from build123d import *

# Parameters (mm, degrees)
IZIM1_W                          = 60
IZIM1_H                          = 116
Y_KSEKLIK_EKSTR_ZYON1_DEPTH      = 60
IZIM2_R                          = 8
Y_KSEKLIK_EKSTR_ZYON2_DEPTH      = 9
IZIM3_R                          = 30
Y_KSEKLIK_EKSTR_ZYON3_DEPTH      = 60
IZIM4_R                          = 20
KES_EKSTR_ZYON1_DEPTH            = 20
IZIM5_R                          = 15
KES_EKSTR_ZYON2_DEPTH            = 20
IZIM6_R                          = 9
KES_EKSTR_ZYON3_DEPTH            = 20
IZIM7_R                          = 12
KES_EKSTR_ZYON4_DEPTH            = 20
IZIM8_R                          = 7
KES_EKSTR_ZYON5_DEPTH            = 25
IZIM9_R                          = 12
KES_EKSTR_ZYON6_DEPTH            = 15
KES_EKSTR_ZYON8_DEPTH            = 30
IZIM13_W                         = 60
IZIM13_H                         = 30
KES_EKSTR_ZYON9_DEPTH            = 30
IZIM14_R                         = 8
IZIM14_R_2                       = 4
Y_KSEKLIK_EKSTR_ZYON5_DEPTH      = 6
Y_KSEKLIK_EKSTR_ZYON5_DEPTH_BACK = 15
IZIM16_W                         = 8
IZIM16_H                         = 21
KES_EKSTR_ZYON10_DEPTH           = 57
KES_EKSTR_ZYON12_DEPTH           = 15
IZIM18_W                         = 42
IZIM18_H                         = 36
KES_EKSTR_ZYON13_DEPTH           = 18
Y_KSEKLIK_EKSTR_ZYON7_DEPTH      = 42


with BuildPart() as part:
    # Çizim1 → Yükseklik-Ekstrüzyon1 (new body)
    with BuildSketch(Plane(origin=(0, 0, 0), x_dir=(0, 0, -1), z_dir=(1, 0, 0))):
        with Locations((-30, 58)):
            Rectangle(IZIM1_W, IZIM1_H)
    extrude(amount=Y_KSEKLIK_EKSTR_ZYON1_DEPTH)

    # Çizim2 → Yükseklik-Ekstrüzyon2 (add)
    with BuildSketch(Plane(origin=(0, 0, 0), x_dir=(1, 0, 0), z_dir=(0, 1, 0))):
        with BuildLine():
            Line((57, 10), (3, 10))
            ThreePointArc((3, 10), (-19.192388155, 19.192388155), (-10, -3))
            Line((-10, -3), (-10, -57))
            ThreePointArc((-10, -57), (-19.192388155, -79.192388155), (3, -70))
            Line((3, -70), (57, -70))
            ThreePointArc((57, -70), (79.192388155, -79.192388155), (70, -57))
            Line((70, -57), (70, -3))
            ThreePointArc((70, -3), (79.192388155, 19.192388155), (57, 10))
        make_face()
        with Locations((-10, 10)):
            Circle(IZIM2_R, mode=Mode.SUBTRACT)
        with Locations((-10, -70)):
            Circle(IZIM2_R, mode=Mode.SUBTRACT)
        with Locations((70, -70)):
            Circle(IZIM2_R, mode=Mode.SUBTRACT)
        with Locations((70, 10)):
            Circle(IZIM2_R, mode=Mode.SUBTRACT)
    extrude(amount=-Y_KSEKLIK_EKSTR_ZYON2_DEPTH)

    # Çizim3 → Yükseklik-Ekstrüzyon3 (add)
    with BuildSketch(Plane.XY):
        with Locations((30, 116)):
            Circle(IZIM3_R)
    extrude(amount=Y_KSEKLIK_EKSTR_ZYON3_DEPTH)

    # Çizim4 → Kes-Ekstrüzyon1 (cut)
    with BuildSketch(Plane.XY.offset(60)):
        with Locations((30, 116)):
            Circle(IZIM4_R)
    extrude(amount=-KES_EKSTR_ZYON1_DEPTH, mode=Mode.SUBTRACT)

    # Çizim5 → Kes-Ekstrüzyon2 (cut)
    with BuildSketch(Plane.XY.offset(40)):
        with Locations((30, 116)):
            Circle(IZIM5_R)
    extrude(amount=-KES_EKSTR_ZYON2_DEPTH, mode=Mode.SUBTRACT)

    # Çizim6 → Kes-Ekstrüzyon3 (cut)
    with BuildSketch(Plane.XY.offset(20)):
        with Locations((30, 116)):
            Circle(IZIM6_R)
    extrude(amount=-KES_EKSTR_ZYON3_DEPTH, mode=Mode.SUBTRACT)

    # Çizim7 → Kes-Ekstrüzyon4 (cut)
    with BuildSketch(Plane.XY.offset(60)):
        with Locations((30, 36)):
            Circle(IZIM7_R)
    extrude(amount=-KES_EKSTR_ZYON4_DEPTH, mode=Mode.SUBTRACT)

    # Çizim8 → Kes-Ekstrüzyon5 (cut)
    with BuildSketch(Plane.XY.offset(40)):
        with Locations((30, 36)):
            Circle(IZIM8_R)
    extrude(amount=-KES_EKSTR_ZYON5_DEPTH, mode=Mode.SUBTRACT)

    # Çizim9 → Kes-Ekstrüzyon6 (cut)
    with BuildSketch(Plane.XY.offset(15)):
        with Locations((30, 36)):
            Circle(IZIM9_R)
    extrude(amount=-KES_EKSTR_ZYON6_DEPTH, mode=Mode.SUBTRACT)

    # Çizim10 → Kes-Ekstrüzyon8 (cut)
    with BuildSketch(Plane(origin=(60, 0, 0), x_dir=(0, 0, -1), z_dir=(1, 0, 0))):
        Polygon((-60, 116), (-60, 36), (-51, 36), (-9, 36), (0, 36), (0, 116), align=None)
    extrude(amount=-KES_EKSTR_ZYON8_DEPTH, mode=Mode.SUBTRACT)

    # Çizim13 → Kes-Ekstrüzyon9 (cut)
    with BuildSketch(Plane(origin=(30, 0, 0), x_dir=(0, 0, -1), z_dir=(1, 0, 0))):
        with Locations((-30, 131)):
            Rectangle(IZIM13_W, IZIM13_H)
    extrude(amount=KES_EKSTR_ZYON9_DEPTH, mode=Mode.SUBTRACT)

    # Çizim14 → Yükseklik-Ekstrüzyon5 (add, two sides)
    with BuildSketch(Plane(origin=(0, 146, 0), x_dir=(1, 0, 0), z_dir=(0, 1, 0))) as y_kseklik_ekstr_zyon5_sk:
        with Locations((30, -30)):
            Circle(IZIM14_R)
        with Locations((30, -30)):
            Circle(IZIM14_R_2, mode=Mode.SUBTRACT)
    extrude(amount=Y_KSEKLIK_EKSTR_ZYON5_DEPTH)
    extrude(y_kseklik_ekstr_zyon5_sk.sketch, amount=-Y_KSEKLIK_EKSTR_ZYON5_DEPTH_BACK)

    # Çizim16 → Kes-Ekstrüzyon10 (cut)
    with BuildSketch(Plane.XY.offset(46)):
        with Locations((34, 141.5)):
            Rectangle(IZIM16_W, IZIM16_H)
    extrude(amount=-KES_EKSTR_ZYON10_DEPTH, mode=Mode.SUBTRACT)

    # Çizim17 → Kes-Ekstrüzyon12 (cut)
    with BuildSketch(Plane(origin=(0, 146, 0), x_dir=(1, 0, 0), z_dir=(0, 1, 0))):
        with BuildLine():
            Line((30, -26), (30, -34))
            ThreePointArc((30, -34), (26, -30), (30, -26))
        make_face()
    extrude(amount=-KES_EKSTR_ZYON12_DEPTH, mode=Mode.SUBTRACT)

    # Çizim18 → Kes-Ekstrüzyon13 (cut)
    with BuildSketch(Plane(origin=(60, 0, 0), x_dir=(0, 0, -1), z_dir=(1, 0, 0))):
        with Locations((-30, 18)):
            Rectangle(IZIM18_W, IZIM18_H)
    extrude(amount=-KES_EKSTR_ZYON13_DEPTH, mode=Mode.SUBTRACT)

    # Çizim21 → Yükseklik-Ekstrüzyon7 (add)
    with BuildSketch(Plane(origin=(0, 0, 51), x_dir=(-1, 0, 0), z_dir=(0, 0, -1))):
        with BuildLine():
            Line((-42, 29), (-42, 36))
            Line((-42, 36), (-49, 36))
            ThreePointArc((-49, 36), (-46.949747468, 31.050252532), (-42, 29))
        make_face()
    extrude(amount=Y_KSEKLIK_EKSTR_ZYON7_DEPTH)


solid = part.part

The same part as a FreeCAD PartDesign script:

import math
import FreeCAD as App
import Part
import Sketcher

V = App.Vector
Q = App.Units.Quantity


def add_polygon(sketch, points):
    """Adds a closed chain of lines whose ends are joined by coincident constraints."""
    first, n = sketch.GeometryCount, len(points)
    for a, b in zip(points, points[1:] + points[:1]):
        sketch.addGeometry(Part.LineSegment(App.Vector(*a, 0), App.Vector(*b, 0)), False)
    for i in range(n):
        sketch.addConstraint(Sketcher.Constraint("Coincident", first + i, 2, first + (i + 1) % n, 1))

doc = App.newDocument("Part")
body = doc.addObject("PartDesign::Body", "Body")

# Sketch on YZ plane
sketch1 = body.newObject("Sketcher::SketchObject", "Sketch")
sketch1.AttachmentSupport = (doc.getObject("YZ_Plane"), [""])
sketch1.MapMode = "FlatFace"
add_polygon(sketch1, [(116, 60), (0, 60), (0, 0), (116, 0)])  # lines 0-3
sketch1.addConstraint([
    Sketcher.Constraint("Horizontal", 0),
    Sketcher.Constraint("Vertical", 1),
    Sketcher.Constraint("Horizontal", 2),
    Sketcher.Constraint("Vertical", 3),
    Sketcher.Constraint("Coincident", 1, 2, -1, 1),
    Sketcher.Constraint("DistanceX", 0, 2, 0, 1, Q("116 mm")),
    Sketcher.Constraint("DistanceY", 1, 2, 1, 1, Q("60 mm")),
])
pad1 = body.newObject("PartDesign::Pad", "Pad")
pad1.Profile = sketch1
pad1.Length = 60

# Sketch on XZ plane
sketch2 = body.newObject("Sketcher::SketchObject", "Sketch001")
sketch2.AttachmentSupport = (doc.getObject("XZ_Plane"), [""])
sketch2.MapMode = "FlatFace"
sketch2.addGeometry([
    Part.LineSegment(V(57, -10, 0), V(3, -10, 0)),  # 0
    Part.ArcOfCircle(Part.Circle(V(-10, -10, 0), V(0, 0, 1), 13), math.radians(90), math.radians(360)),  # 1
    Part.LineSegment(V(-10, 3, 0), V(-10, 57, 0)),  # 2
    Part.ArcOfCircle(Part.Circle(V(-10, 70, 0), V(0, 0, 1), 13), math.radians(0), math.radians(270)),  # 3
    Part.LineSegment(V(3, 70, 0), V(57, 70, 0)),  # 4
    Part.ArcOfCircle(Part.Circle(V(70, 70, 0), V(0, 0, 1), 13), math.radians(-90), math.radians(180)),  # 5
    Part.LineSegment(V(70, 57, 0), V(70, 3, 0)),  # 6
    Part.ArcOfCircle(Part.Circle(V(70, -10, 0), V(0, 0, 1), 13), math.radians(180), math.radians(450)),  # 7
    Part.Circle(V(-10, 70, 0), V(0, 0, 1), 8),  # 8
    Part.Circle(V(70, 70, 0), V(0, 0, 1), 8),  # 9
    Part.Circle(V(-10, -10, 0), V(0, 0, 1), 8),  # 10
    Part.Circle(V(70, -10, 0), V(0, 0, 1), 8),  # 11
], False)
sketch2.addConstraint([
    Sketcher.Constraint("Coincident", 0, 2, 1, 2),
    Sketcher.Constraint("Coincident", 1, 1, 2, 1),
    Sketcher.Constraint("Coincident", 2, 2, 3, 2),
    Sketcher.Constraint("Coincident", 3, 1, 4, 1),
    Sketcher.Constraint("Coincident", 4, 2, 5, 2),
    Sketcher.Constraint("Coincident", 5, 1, 6, 1),
    Sketcher.Constraint("Coincident", 6, 2, 7, 2),
    Sketcher.Constraint("Coincident", 7, 1, 0, 1),
    Sketcher.Constraint("Horizontal", 0),
    Sketcher.Constraint("Vertical", 2),
    Sketcher.Constraint("Horizontal", 4),
    Sketcher.Constraint("Vertical", 6),
    Sketcher.Constraint("Coincident", 8, 3, 3, 3),
    Sketcher.Constraint("Coincident", 9, 3, 5, 3),
    Sketcher.Constraint("Coincident", 10, 3, 1, 3),
    Sketcher.Constraint("Coincident", 11, 3, 7, 3),
    Sketcher.Constraint("Equal", 1, 3),
    Sketcher.Constraint("Equal", 3, 5),
    Sketcher.Constraint("Equal", 5, 7),
    Sketcher.Constraint("Equal", 8, 9),
    Sketcher.Constraint("Equal", 9, 10),
    Sketcher.Constraint("Equal", 10, 11),
    Sketcher.Constraint("Horizontal", 3, 3, 5, 3),
    Sketcher.Constraint("Horizontal", 1, 3, 7, 3),
    Sketcher.Constraint("Horizontal", 11, 3, 0, 2),
    Sketcher.Constraint("Horizontal", 9, 3, 3, 1),
    Sketcher.Constraint("Vertical", 1, 3, 3, 3),
    Sketcher.Constraint("Vertical", 5, 3, 7, 3),
    Sketcher.Constraint("Vertical", 10, 3, 1, 1),
    Sketcher.Constraint("Vertical", 11, 3, 5, 1),
    Sketcher.Constraint("Equal", 4, 2),
    Sketcher.Constraint("Diameter", 8, Q("16 mm")),
    Sketcher.Constraint("Radius", 1, Q("13 mm")),
    Sketcher.Constraint("DistanceX", 0, 2, 0, 1, Q("54 mm")),
    Sketcher.Constraint("DistanceX", 1, 3, -1, 1, Q("10 mm")),
    Sketcher.Constraint("DistanceY", 1, 3, -1, 1, Q("10 mm")),
])
pad2 = body.newObject("PartDesign::Pad", "Pad001")
pad2.Profile = sketch2
pad2.Length = 9

# Sketch on XY plane
sketch3 = body.newObject("Sketcher::SketchObject", "Sketch002")
sketch3.AttachmentSupport = (doc.getObject("XY_Plane"), [""])
sketch3.MapMode = "FlatFace"
sketch3.addGeometry(Part.Circle(V(30, 116, 0), V(0, 0, 1), 30), False)
sketch3.addConstraint([
    Sketcher.Constraint("Diameter", 0, Q("60 mm")),
    Sketcher.Constraint("DistanceX", -1, 1, 0, 3, Q("30 mm")),
    Sketcher.Constraint("DistanceY", -1, 1, 0, 3, Q("116 mm")),
])
pad3 = body.newObject("PartDesign::Pad", "Pad002")
pad3.Profile = sketch3
pad3.Length = 60

# Sketch on XY plane
sketch4 = body.newObject("Sketcher::SketchObject", "Sketch003")
sketch4.AttachmentSupport = (doc.getObject("XY_Plane"), [""])
sketch4.MapMode = "FlatFace"
sketch4.AttachmentOffset = App.Placement(V(0, 0, 60), App.Rotation())
sketch4.addGeometry(Part.Circle(V(30, 116, 0), V(0, 0, 1), 20), False)
sketch4.addConstraint([
    Sketcher.Constraint("Diameter", 0, Q("40 mm")),
    Sketcher.Constraint("DistanceX", -1, 1, 0, 3, Q("30 mm")),
    Sketcher.Constraint("DistanceY", -1, 1, 0, 3, Q("116 mm")),
])
pocket1 = body.newObject("PartDesign::Pocket", "Pocket")
pocket1.Profile = sketch4
pocket1.Length = 20

# Sketch on XY plane
sketch5 = body.newObject("Sketcher::SketchObject", "Sketch004")
sketch5.AttachmentSupport = (doc.getObject("XY_Plane"), [""])
sketch5.MapMode = "FlatFace"
sketch5.AttachmentOffset = App.Placement(V(0, 0, 40), App.Rotation())
sketch5.addGeometry(Part.Circle(V(30, 116, 0), V(0, 0, 1), 15), False)
sketch5.addConstraint([
    Sketcher.Constraint("Diameter", 0, Q("30 mm")),
    Sketcher.Constraint("DistanceX", -1, 1, 0, 3, Q("30 mm")),
    Sketcher.Constraint("DistanceY", -1, 1, 0, 3, Q("116 mm")),
])
pocket2 = body.newObject("PartDesign::Pocket", "Pocket001")
pocket2.Profile = sketch5
pocket2.Length = 20

# Sketch on XY plane
sketch6 = body.newObject("Sketcher::SketchObject", "Sketch005")
sketch6.AttachmentSupport = (doc.getObject("XY_Plane"), [""])
sketch6.MapMode = "FlatFace"
sketch6.AttachmentOffset = App.Placement(V(0, 0, 20), App.Rotation())
sketch6.addGeometry(Part.Circle(V(30, 116, 0), V(0, 0, 1), 9), False)
sketch6.addConstraint([
    Sketcher.Constraint("Diameter", 0, Q("18 mm")),
    Sketcher.Constraint("DistanceX", -1, 1, 0, 3, Q("30 mm")),
    Sketcher.Constraint("DistanceY", -1, 1, 0, 3, Q("116 mm")),
])
pocket3 = body.newObject("PartDesign::Pocket", "Pocket002")
pocket3.Profile = sketch6
pocket3.Length = 20

# Sketch on XY plane
sketch7 = body.newObject("Sketcher::SketchObject", "Sketch006")
sketch7.AttachmentSupport = (doc.getObject("XY_Plane"), [""])
sketch7.MapMode = "FlatFace"
sketch7.AttachmentOffset = App.Placement(V(0, 0, 60), App.Rotation())
sketch7.addGeometry(Part.Circle(V(30, 36, 0), V(0, 0, 1), 12), False)
sketch7.addConstraint([
    Sketcher.Constraint("Diameter", 0, Q("24 mm")),
    Sketcher.Constraint("DistanceX", -1, 1, 0, 3, Q("30 mm")),
    Sketcher.Constraint("DistanceY", -1, 1, 0, 3, Q("36 mm")),
])
pocket4 = body.newObject("PartDesign::Pocket", "Pocket003")
pocket4.Profile = sketch7
pocket4.Length = 20

# Sketch on XY plane
sketch8 = body.newObject("Sketcher::SketchObject", "Sketch007")
sketch8.AttachmentSupport = (doc.getObject("XY_Plane"), [""])
sketch8.MapMode = "FlatFace"
sketch8.AttachmentOffset = App.Placement(V(0, 0, 40), App.Rotation())
sketch8.addGeometry(Part.Circle(V(30, 36, 0), V(0, 0, 1), 7), False)
sketch8.addConstraint([
    Sketcher.Constraint("Diameter", 0, Q("14 mm")),
    Sketcher.Constraint("DistanceX", -1, 1, 0, 3, Q("30 mm")),
    Sketcher.Constraint("DistanceY", -1, 1, 0, 3, Q("36 mm")),
])
pocket5 = body.newObject("PartDesign::Pocket", "Pocket004")
pocket5.Profile = sketch8
pocket5.Length = 25

# Sketch on XY plane
sketch9 = body.newObject("Sketcher::SketchObject", "Sketch008")
sketch9.AttachmentSupport = (doc.getObject("XY_Plane"), [""])
sketch9.MapMode = "FlatFace"
sketch9.AttachmentOffset = App.Placement(V(0, 0, 15), App.Rotation())
sketch9.addGeometry(Part.Circle(V(30, 36, 0), V(0, 0, 1), 12), False)
sketch9.addConstraint([
    Sketcher.Constraint("Diameter", 0, Q("24 mm")),
    Sketcher.Constraint("DistanceX", -1, 1, 0, 3, Q("30 mm")),
    Sketcher.Constraint("DistanceY", -1, 1, 0, 3, Q("36 mm")),
])
pocket6 = body.newObject("PartDesign::Pocket", "Pocket005")
pocket6.Profile = sketch9
pocket6.Length = 15

# Sketch on YZ plane
sketch10 = body.newObject("Sketcher::SketchObject", "Sketch009")
sketch10.AttachmentSupport = (doc.getObject("YZ_Plane"), [""])
sketch10.MapMode = "FlatFace"
sketch10.AttachmentOffset = App.Placement(V(0, 0, 60), App.Rotation())
add_polygon(sketch10, [(116, 60), (36, 60), (36, 0), (116, 0)])  # lines 0-3
sketch10.addConstraint([
    Sketcher.Constraint("Horizontal", 0),
    Sketcher.Constraint("Vertical", 1),
    Sketcher.Constraint("Horizontal", 2),
    Sketcher.Constraint("Vertical", 3),
    Sketcher.Constraint("PointOnObject", 1, 2, -1),
    Sketcher.Constraint("DistanceX", 0, 2, 0, 1, Q("80 mm")),
    Sketcher.Constraint("DistanceY", 1, 2, 1, 1, Q("60 mm")),
    Sketcher.Constraint("DistanceX", -1, 1, 0, 2, Q("36 mm")),
])
pocket7 = body.newObject("PartDesign::Pocket", "Pocket006")
pocket7.Profile = sketch10
pocket7.Length = 30

# Sketch on YZ plane
sketch11 = body.newObject("Sketcher::SketchObject", "Sketch010")
sketch11.AttachmentSupport = (doc.getObject("YZ_Plane"), [""])
sketch11.MapMode = "FlatFace"
sketch11.AttachmentOffset = App.Placement(V(0, 0, 30), App.Rotation())
add_polygon(sketch11, [(146, 60), (116, 60), (116, 0), (146, 0)])  # lines 0-3
sketch11.addConstraint([
    Sketcher.Constraint("Horizontal", 0),
    Sketcher.Constraint("Vertical", 1),
    Sketcher.Constraint("Horizontal", 2),
    Sketcher.Constraint("Vertical", 3),
    Sketcher.Constraint("PointOnObject", 1, 2, -1),
    Sketcher.Constraint("DistanceX", 0, 2, 0, 1, Q("30 mm")),
    Sketcher.Constraint("DistanceY", 1, 2, 1, 1, Q("60 mm")),
    Sketcher.Constraint("DistanceX", -1, 1, 0, 2, Q("116 mm")),
])
pocket8 = body.newObject("PartDesign::Pocket", "Pocket007")
pocket8.Profile = sketch11
pocket8.Length = 30
pocket8.Reversed = True

# Sketch on XZ plane
sketch12 = body.newObject("Sketcher::SketchObject", "Sketch011")
sketch12.AttachmentSupport = (doc.getObject("XZ_Plane"), [""])
sketch12.MapMode = "FlatFace"
sketch12.AttachmentOffset = App.Placement(V(0, 0, -146), App.Rotation())
sketch12.addGeometry([
    Part.Circle(V(30, 30, 0), V(0, 0, 1), 8),
    Part.Circle(V(30, 30, 0), V(0, 0, 1), 4),
], False)
sketch12.addConstraint([
    Sketcher.Constraint("Coincident", 1, 3, 0, 3),
    Sketcher.Constraint("Diameter", 0, Q("16 mm")),
    Sketcher.Constraint("Diameter", 1, Q("8 mm")),
    Sketcher.Constraint("DistanceX", -1, 1, 0, 3, Q("30 mm")),
    Sketcher.Constraint("DistanceY", -1, 1, 0, 3, Q("30 mm")),
])
pad4 = body.newObject("PartDesign::Pad", "Pad003")
pad4.Profile = sketch12
pad4.Type = "TwoLengths"
pad4.Length = 6
pad4.Length2 = 15
pad4.Reversed = True

# Sketch on XY plane
sketch13 = body.newObject("Sketcher::SketchObject", "Sketch012")
sketch13.AttachmentSupport = (doc.getObject("XY_Plane"), [""])
sketch13.MapMode = "FlatFace"
sketch13.AttachmentOffset = App.Placement(V(0, 0, 46), App.Rotation())
add_polygon(sketch13, [(30, 152), (30, 131), (38, 131), (38, 152)])  # lines 0-3
sketch13.addConstraint([
    Sketcher.Constraint("Vertical", 0),
    Sketcher.Constraint("Horizontal", 1),
    Sketcher.Constraint("Vertical", 2),
    Sketcher.Constraint("Horizontal", 3),
    Sketcher.Constraint("DistanceX", 1, 1, 1, 2, Q("8 mm")),
    Sketcher.Constraint("DistanceY", 0, 2, 0, 1, Q("21 mm")),
    Sketcher.Constraint("DistanceX", -1, 1, 0, 2, Q("30 mm")),
    Sketcher.Constraint("DistanceY", -1, 1, 0, 2, Q("131 mm")),
])
pocket9 = body.newObject("PartDesign::Pocket", "Pocket008")
pocket9.Profile = sketch13
pocket9.Length = 57

# Sketch on XZ plane
sketch14 = body.newObject("Sketcher::SketchObject", "Sketch013")
sketch14.AttachmentSupport = (doc.getObject("XZ_Plane"), [""])
sketch14.MapMode = "FlatFace"
sketch14.AttachmentOffset = App.Placement(V(0, 0, -146), App.Rotation())
sketch14.addGeometry([
    Part.LineSegment(V(30, 34, 0), V(30, 26, 0)),
    Part.ArcOfCircle(Part.Circle(V(30, 30, 0), V(0, 0, 1), 4), math.radians(90), math.radians(270)),
], False)
sketch14.addConstraint([
    Sketcher.Constraint("Coincident", 0, 1, 1, 1),
    Sketcher.Constraint("Coincident", 1, 2, 0, 2),
    Sketcher.Constraint("Vertical", 0),
    Sketcher.Constraint("Vertical", 1, 3, 0, 1),
    Sketcher.Constraint("Radius", 1, Q("4 mm")),
    Sketcher.Constraint("DistanceX", -1, 1, 1, 3, Q("30 mm")),
    Sketcher.Constraint("DistanceY", -1, 1, 1, 3, Q("30 mm")),
])
pocket10 = body.newObject("PartDesign::Pocket", "Pocket009")
pocket10.Profile = sketch14
pocket10.Length = 15
pocket10.Reversed = True

# Sketch on YZ plane
sketch15 = body.newObject("Sketcher::SketchObject", "Sketch014")
sketch15.AttachmentSupport = (doc.getObject("YZ_Plane"), [""])
sketch15.MapMode = "FlatFace"
sketch15.AttachmentOffset = App.Placement(V(0, 0, 60), App.Rotation())
add_polygon(sketch15, [(36, 51), (0, 51), (0, 9), (36, 9)])  # lines 0-3
sketch15.addConstraint([
    Sketcher.Constraint("Horizontal", 0),
    Sketcher.Constraint("Vertical", 1),
    Sketcher.Constraint("Horizontal", 2),
    Sketcher.Constraint("Vertical", 3),
    Sketcher.Constraint("PointOnObject", 0, 2, -2),
    Sketcher.Constraint("DistanceX", 0, 2, 0, 1, Q("36 mm")),
    Sketcher.Constraint("DistanceY", 1, 2, 1, 1, Q("42 mm")),
    Sketcher.Constraint("DistanceY", -1, 1, 0, 2, Q("51 mm")),
])
pocket11 = body.newObject("PartDesign::Pocket", "Pocket010")
pocket11.Profile = sketch15
pocket11.Length = 18

# Sketch on XY plane
sketch16 = body.newObject("Sketcher::SketchObject", "Sketch015")
sketch16.AttachmentSupport = (doc.getObject("XY_Plane"), [""])
sketch16.MapMode = "FlatFace"
sketch16.AttachmentOffset = App.Placement(V(0, 0, 51), App.Rotation())
sketch16.addGeometry([
    Part.LineSegment(V(42, 29, 0), V(42, 36, 0)),
    Part.LineSegment(V(42, 36, 0), V(49, 36, 0)),
    Part.ArcOfCircle(Part.Circle(V(42, 36, 0), V(0, 0, 1), 7), math.radians(-90), math.radians(0)),
], False)
sketch16.addConstraint([
    Sketcher.Constraint("Coincident", 0, 2, 1, 1),
    Sketcher.Constraint("Coincident", 1, 2, 2, 2),
    Sketcher.Constraint("Coincident", 2, 1, 0, 1),
    Sketcher.Constraint("Vertical", 0),
    Sketcher.Constraint("Horizontal", 1),
    Sketcher.Constraint("Coincident", 0, 2, 2, 3),
    Sketcher.Constraint("Radius", 2, Q("7 mm")),
    Sketcher.Constraint("DistanceX", -1, 1, 2, 3, Q("42 mm")),
    Sketcher.Constraint("DistanceY", -1, 1, 2, 3, Q("36 mm")),
])
pad5 = body.newObject("PartDesign::Pad", "Pad004")
pad5.Profile = sketch16
pad5.Length = 42
pad5.Reversed = True

doc.recompute()
